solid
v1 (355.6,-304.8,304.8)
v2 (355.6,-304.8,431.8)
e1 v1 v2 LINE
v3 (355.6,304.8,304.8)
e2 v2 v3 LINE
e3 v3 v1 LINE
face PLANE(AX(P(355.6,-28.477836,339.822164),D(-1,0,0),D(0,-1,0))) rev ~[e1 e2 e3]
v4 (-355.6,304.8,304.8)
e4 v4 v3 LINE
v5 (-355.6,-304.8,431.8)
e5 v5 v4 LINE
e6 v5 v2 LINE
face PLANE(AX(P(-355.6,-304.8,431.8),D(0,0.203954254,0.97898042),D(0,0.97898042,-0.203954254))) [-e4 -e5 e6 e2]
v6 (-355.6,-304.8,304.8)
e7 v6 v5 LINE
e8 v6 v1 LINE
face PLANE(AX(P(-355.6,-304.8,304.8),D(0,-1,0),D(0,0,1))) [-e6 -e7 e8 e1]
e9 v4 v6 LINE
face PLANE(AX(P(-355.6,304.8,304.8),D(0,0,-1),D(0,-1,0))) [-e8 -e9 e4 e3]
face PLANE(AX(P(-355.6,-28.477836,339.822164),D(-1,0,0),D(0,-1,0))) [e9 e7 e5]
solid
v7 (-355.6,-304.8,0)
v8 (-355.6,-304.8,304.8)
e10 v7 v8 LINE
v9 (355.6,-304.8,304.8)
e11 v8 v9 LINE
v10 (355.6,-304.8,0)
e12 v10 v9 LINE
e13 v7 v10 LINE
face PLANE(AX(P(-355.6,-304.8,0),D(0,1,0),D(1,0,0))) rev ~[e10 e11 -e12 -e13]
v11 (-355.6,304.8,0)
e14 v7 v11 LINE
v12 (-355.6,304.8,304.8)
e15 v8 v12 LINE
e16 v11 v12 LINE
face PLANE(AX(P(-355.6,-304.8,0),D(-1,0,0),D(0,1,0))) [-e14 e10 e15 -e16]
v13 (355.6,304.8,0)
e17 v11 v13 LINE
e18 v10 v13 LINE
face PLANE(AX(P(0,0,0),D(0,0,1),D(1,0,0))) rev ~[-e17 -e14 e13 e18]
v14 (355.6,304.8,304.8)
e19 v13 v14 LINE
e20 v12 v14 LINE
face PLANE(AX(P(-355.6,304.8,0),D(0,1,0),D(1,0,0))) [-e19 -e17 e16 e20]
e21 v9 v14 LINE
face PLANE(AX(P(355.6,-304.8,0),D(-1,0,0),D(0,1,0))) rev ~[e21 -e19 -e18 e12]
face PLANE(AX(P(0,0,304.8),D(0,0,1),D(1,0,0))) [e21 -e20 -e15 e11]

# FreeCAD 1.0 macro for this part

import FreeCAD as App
import Part
import Sketcher

V = App.Vector
Q = App.Units.Quantity


def add_polygon(sketch, points):
    """Adds a closed chain of lines whose ends are joined by coincident constraints."""
    first, n = sketch.GeometryCount, len(points)
    for a, b in zip(points, points[1:] + points[:1]):
        sketch.addGeometry(Part.LineSegment(App.Vector(*a, 0), App.Vector(*b, 0)), False)
    for i in range(n):
        sketch.addConstraint(Sketcher.Constraint("Coincident", first + i, 2, first + (i + 1) % n, 1))

doc = App.newDocument("Part")
params = doc.addObject("Spreadsheet::Sheet", "Params")
for row, (alias, value) in enumerate([
    ("sketch1_width", "28 in"),
    ("sketch1_height", "24 in"),
    ("pad1_length", "12 in"),
    ("sketch2_width", "24 in"),
    ("sketch2_height", "5 in"),
    ("pad2_length", "28 in"),
], start=1):
    params.set(f"A{row}", alias)
    params.set(f"B{row}", "=" + value)
    params.setAlias(f"B{row}", alias)

body = doc.addObject("PartDesign::Body", "Body")

sketch1 = body.newObject("Sketcher::SketchObject", "Sketch")
sketch1.AttachmentSupport = (doc.getObject("XY_Plane"), [""])
sketch1.MapMode = "FlatFace"
add_polygon(sketch1, [(-355.6, 304.8), (-355.6, -304.8), (355.6, -304.8), (355.6, 304.8)])
sketch1.addConstraint(Sketcher.Constraint("Vertical", 0))
sketch1.addConstraint(Sketcher.Constraint("Horizontal", 1))
sketch1.addConstraint(Sketcher.Constraint("Vertical", 2))
sketch1.addConstraint(Sketcher.Constraint("Horizontal", 3))
sketch1.addConstraint(Sketcher.Constraint("Symmetric", 0, 2, 2, 2, -1, 1))
sketch1.addConstraint(Sketcher.Constraint("DistanceX", 1, 1, 1, 2, Q("28 in")))
sketch1.addConstraint(Sketcher.Constraint("DistanceY", 0, 2, 0, 1, Q("24 in")))
sketch1.setExpression("Constraints[9]", "Params.sketch1_width")
sketch1.setExpression("Constraints[10]", "Params.sketch1_height")
pad1 = body.newObject("PartDesign::Pad", "Pad")
pad1.Profile = sketch1
pad1.setExpression("Length", "Params.pad1_length")
body2 = doc.addObject("PartDesign::Body", "Body001")

sketch2 = body2.newObject("Sketcher::SketchObject", "Sketch001")
sketch2.AttachmentSupport = (doc.getObject("YZ_Plane001"), [""])
sketch2.MapMode = "FlatFace"
sketch2.AttachmentOffset = App.Placement(V(0, 0, -14 * 25.4), App.Rotation())
add_polygon(sketch2, [(-304.8, 431.8), (304.8, 304.8), (-304.8, 304.8)])
sketch2.addConstraint(Sketcher.Constraint("Horizontal", 1))
sketch2.addConstraint(Sketcher.Constraint("Vertical", 2))
sketch2.addConstraint(Sketcher.Constraint("DistanceX", 1, 2, 1, 1, Q("24 in")))
sketch2.addConstraint(Sketcher.Constraint("DistanceY", 2, 1, 2, 2, Q("5 in")))
sketch2.addConstraint(Sketcher.Constraint("DistanceX", -1, 1, 0, 2, Q("12 in")))
sketch2.addConstraint(Sketcher.Constraint("DistanceY", -1, 1, 0, 2, Q("12 in")))
sketch2.setExpression("Constraints[5]", "Params.sketch2_width")
sketch2.setExpression("Constraints[6]", "Params.sketch2_height")
pad2 = body2.newObject("PartDesign::Pad", "Pad001")
pad2.Profile = sketch2
pad2.setExpression("Length", "Params.pad2_length")

doc.recompute()
